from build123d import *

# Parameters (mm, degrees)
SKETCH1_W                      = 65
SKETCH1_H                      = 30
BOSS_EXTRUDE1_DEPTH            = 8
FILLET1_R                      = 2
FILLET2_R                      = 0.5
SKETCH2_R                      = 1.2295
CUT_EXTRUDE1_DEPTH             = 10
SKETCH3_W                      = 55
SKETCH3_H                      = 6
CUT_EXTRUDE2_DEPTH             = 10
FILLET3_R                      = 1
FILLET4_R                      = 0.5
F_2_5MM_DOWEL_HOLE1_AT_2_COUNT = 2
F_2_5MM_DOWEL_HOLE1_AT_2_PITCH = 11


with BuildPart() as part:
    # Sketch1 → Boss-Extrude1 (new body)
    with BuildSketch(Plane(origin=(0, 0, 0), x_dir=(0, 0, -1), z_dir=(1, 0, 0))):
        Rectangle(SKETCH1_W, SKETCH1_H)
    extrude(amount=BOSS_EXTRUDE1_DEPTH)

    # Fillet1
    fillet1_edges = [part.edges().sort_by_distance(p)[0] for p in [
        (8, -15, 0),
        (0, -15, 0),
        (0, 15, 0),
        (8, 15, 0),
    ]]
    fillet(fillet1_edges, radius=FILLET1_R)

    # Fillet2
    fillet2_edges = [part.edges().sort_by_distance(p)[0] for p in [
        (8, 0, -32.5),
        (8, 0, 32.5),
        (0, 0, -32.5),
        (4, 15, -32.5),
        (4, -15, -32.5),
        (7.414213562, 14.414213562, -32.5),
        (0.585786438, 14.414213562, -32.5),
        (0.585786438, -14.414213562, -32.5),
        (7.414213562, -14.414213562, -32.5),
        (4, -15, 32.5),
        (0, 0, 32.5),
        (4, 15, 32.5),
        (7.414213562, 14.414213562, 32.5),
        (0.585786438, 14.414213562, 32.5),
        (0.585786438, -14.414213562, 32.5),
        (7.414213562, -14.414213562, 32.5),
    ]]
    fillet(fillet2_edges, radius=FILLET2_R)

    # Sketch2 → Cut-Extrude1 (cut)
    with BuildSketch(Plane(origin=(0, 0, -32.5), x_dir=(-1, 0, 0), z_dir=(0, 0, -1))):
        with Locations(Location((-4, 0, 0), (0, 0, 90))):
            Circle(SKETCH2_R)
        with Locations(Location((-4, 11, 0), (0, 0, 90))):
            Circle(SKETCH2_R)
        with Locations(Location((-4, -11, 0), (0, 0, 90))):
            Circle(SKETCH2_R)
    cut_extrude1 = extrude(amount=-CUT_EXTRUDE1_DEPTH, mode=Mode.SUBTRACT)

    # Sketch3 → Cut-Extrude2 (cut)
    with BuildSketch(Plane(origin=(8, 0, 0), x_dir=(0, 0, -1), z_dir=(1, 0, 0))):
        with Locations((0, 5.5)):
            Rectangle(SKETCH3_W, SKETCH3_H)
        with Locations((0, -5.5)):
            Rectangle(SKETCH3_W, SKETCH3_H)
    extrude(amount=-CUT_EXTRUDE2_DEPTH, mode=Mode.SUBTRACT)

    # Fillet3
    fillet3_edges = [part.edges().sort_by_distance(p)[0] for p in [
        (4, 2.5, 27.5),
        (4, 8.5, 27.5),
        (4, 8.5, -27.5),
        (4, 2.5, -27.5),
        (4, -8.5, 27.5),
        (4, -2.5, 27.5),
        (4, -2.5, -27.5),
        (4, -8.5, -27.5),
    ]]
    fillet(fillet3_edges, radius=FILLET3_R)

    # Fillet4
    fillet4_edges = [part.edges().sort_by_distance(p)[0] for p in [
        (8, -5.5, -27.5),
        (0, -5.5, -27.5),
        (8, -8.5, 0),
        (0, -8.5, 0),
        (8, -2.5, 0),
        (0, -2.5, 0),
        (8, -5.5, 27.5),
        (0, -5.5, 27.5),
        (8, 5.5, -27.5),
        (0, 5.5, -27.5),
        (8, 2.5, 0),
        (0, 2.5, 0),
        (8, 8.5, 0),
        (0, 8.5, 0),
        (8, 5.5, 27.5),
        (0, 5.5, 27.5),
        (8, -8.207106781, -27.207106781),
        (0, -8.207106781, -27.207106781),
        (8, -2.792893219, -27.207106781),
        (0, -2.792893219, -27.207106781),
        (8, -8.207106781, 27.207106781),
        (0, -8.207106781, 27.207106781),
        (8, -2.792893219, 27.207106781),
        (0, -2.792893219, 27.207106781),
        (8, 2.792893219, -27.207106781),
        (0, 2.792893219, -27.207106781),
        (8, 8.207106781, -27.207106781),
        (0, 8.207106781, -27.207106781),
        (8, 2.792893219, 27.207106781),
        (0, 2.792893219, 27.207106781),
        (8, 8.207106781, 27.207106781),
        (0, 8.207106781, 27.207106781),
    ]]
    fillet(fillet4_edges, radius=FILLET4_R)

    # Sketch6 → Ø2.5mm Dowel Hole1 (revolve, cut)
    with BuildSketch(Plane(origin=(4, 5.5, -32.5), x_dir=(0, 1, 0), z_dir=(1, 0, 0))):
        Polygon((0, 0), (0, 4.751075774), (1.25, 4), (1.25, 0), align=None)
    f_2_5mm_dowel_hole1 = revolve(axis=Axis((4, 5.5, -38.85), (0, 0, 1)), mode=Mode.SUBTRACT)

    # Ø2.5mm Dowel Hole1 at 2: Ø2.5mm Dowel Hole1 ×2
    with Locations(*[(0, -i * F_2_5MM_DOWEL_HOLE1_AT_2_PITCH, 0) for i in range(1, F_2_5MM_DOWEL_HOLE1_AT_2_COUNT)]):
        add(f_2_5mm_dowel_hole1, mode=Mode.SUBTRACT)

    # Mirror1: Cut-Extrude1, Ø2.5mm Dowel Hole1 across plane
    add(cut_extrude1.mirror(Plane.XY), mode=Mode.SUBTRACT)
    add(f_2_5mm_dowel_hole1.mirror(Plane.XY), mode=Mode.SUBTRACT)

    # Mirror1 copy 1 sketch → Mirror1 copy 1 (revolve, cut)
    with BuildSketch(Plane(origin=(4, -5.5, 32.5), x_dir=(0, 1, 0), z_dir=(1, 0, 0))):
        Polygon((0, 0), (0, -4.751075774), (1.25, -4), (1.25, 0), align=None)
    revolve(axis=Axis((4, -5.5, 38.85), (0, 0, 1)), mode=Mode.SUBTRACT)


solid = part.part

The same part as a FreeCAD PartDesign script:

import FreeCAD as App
import Part
import Sketcher
Q = App.Units.Quantity


def edges_at(feature, points):
    """Names of the edges that pass closest to the given points."""
    edges = feature.Shape.Edges
    near = lambda p: min(range(len(edges)), key=lambda i: edges[i].distToShape(Part.Vertex(*p))[0])
    return sorted({f"Edge{near(p) + 1}" for p in points})

doc = App.newDocument("Part")
body = doc.addObject("PartDesign::Body", "Body")

# Sketch on YZ plane
sketch1 = body.newObject("Sketcher::SketchObject", "Sketch")
sketch1.AttachmentSupport = (doc.getObject("YZ_Plane"), [""])
sketch1.MapMode = "FlatFace"
sketch1.addGeometry([
    Part.LineSegment(App.Vector(15, 32, 0), App.Vector(-15, 32, 0)),
    Part.LineSegment(App.Vector(-15, 32, 0), App.Vector(-15, -32, 0)),
    Part.LineSegment(App.Vector(-15, -32, 0), App.Vector(15, -32, 0)),
    Part.LineSegment(App.Vector(15, -32, 0), App.Vector(15, 32, 0)),
], False)
sketch1.addConstraint([
    Sketcher.Constraint("Coincident", 0, 2, 1, 1),
    Sketcher.Constraint("Coincident", 1, 2, 2, 1),
    Sketcher.Constraint("Coincident", 2, 2, 3, 1),
    Sketcher.Constraint("Coincident", 3, 2, 0, 1),
    Sketcher.Constraint("Horizontal", 0),
    Sketcher.Constraint("Vertical", 1),
    Sketcher.Constraint("Horizontal", 2),
    Sketcher.Constraint("Vertical", 3),
    Sketcher.Constraint("Symmetric", 0, 2, 2, 2, -1, 1),
    Sketcher.Constraint("DistanceX", 0, 2, 0, 1, 30.0),
    Sketcher.Constraint("DistanceY", 1, 2, 1, 1, 65.0),
])
pad1 = body.newObject("PartDesign::Pad", "Pad")
pad1.Profile = sketch1
pad1.Length = 8
doc.recompute()

fillet = body.newObject("PartDesign::Fillet", "Fillet")
fillet.Base = (pad1, edges_at(pad1, [
    (8, -15, 0),
    (0, -15, 0),
    (0, 15, 0),
    (8, 15, 0),
]))
fillet.Radius = 2
doc.recompute()

fillet2 = body.newObject("PartDesign::Fillet", "Fillet001")
fillet2.Base = (fillet, edges_at(fillet, [
    (8, 0, -32.5),
    (8, 0, 32.5),
    (0, 0, -32.5),
    (4, 15, -32.5),
    (4, -15, -32.5),
    (7.414, 14.414, -32.5),
    (0.586, 14.414, -32.5),
    (0.586, -14.414, -32.5),
    (7.414, -14.414, -32.5),
    (4, -15, 32.5),
    (0, 0, 32.5),
    (4, 15, 32.5),
    (7.414, 14.414, 32.5),
    (0.586, 14.414, 32.5),
    (0.586, -14.414, 32.5),
    (7.414, -14.414, 32.5),
]))
fillet2.Radius = 0.5

# Sketch on XY plane
sketch2 = body.newObject("Sketcher::SketchObject", "Sketch001")
sketch2.AttachmentSupport = (doc.getObject("XY_Plane"), [""])
sketch2.MapMode = "FlatFace"
sketch2.AttachmentOffset = App.Placement(App.Vector(0, 0, -32.5), App.Rotation())
sketch2.addGeometry([
    Part.Circle(App.Vector(4, 0, 0), App.Vector(0, 0, 1), 1.2),
    Part.Circle(App.Vector(4, 11, 0), App.Vector(0, 0, 1), 1.2),
    Part.Circle(App.Vector(4, -11, 0), App.Vector(0, 0, 1), 1.2),
], False)
sketch2.addConstraint([
    Sketcher.Constraint("Equal", 0, 1),
    Sketcher.Constraint("Equal", 1, 2),
    Sketcher.Constraint("Symmetric", 1, 3, 2, 3, -1),
    Sketcher.Constraint("PointOnObject", 0, 3, -1),
    Sketcher.Constraint("Vertical", 0, 3, 1, 3),
    Sketcher.Constraint("Diameter", 0, 2.459),
    Sketcher.Constraint("DistanceX", -1, 1, 0, 3, 4.0),
    Sketcher.Constraint("DistanceY", -1, 1, 1, 3, 11.0),
])
pocket1 = body.newObject("PartDesign::Pocket", "Pocket")
pocket1.Profile = sketch2
pocket1.Length = 10
pocket1.Reversed = True

# Sketch on YZ plane
sketch3 = body.newObject("Sketcher::SketchObject", "Sketch002")
sketch3.AttachmentSupport = (doc.getObject("YZ_Plane"), [""])
sketch3.MapMode = "FlatFace"
sketch3.AttachmentOffset = App.Placement(App.Vector(0, 0, 8), App.Rotation())
sketch3.addGeometry([
    Part.LineSegment(App.Vector(8, 28, 0), App.Vector(2, 28, 0)),  # 0
    Part.LineSegment(App.Vector(2, 28, 0), App.Vector(2, -28, 0)),  # 1
    Part.LineSegment(App.Vector(2, -28, 0), App.Vector(8, -28, 0)),  # 2
    Part.LineSegment(App.Vector(8, -28, 0), App.Vector(8, 28, 0)),  # 3
    Part.LineSegment(App.Vector(-2, 28, 0), App.Vector(-8, 28, 0)),  # 4
    Part.LineSegment(App.Vector(-8, 28, 0), App.Vector(-8, -28, 0)),  # 5
    Part.LineSegment(App.Vector(-8, -28, 0), App.Vector(-2, -28, 0)),  # 6
    Part.LineSegment(App.Vector(-2, -28, 0), App.Vector(-2, 28, 0)),  # 7
], False)
sketch3.addConstraint([
    Sketcher.Constraint("Coincident", 0, 2, 1, 1),
    Sketcher.Constraint("Coincident", 1, 2, 2, 1),
    Sketcher.Constraint("Coincident", 2, 2, 3, 1),
    Sketcher.Constraint("Coincident", 3, 2, 0, 1),
    Sketcher.Constraint("Coincident", 4, 2, 5, 1),
    Sketcher.Constraint("Coincident", 5, 2, 6, 1),
    Sketcher.Constraint("Coincident", 6, 2, 7, 1),
    Sketcher.Constraint("Coincident", 7, 2, 4, 1),
    Sketcher.Constraint("Horizontal", 0),
    Sketcher.Constraint("Vertical", 1),
    Sketcher.Constraint("Horizontal", 2),
    Sketcher.Constraint("Vertical", 3),
    Sketcher.Constraint("Horizontal", 4),
    Sketcher.Constraint("Vertical", 5),
    Sketcher.Constraint("Horizontal", 6),
    Sketcher.Constraint("Vertical", 7),
    Sketcher.Constraint("Symmetric", 2, 2, 4, 2, -1, 1),
    Sketcher.Constraint("Symmetric", 0, 2, 6, 2, -1, 1),
    Sketcher.Constraint("Horizontal", 3, 2, 4, 2),
    Sketcher.Constraint("DistanceX", 0, 2, 0, 1, 6.0),
    Sketcher.Constraint("DistanceY", 1, 2, 1, 1, 55.0),
    Sketcher.Constraint("DistanceX", 4, 2, 0, 2, 11.0),
])
pocket2 = body.newObject("PartDesign::Pocket", "Pocket001")
pocket2.Profile = sketch3
pocket2.Length = 10
doc.recompute()

fillet3 = body.newObject("PartDesign::Fillet", "Fillet002")
fillet3.Base = (pocket2, edges_at(pocket2, [
    (4, 2.5, 27.5),
    (4, 8.5, 27.5),
    (4, 8.5, -27.5),
    (4, 2.5, -27.5),
    (4, -8.5, 27.5),
    (4, -2.5, 27.5),
    (4, -2.5, -27.5),
    (4, -8.5, -27.5),
]))
fillet3.Radius = 1
doc.recompute()

fillet4 = body.newObject("PartDesign::Fillet", "Fillet003")
fillet4.Base = (fillet3, edges_at(fillet3, [
    (8, -5.5, -27.5),
    (0, -5.5, -27.5),
    (8, -8.5, 0),
    (0, -8.5, 0),
    (8, -2.5, 0),
    (0, -2.5, 0),
    (8, -5.5, 27.5),
    (0, -5.5, 27.5),
    (8, 5.5, -27.5),
    (0, 5.5, -27.5),
    (8, 2.5, 0),
    (0, 2.5, 0),
    (8, 8.5, 0),
    (0, 8.5, 0),
    (8, 5.5, 27.5),
    (0, 5.5, 27.5),
    (8, -8.207, -27.207),
    (0, -8.207, -27.207),
    (8, -2.793, -27.207),
    (0, -2.793, -27.207),
    (8, -8.207, 27.207),
    (0, -8.207, 27.207),
    (8, -2.793, 27.207),
    (0, -2.793, 27.207),
    (8, 2.793, -27.207),
    (0, 2.793, -27.207),
    (8, 8.207, -27.207),
    (0, 8.207, -27.207),
    (8, 2.793, 27.207),
    (0, 2.793, 27.207),
    (8, 8.207, 27.207),
    (0, 8.207, 27.207),
]))
fillet4.Radius = 0.5

# Sketch on YZ plane
sketch4 = body.newObject("Sketcher::SketchObject", "Sketch003")
sketch4.AttachmentSupport = (doc.getObject("YZ_Plane"), [""])
sketch4.MapMode = "FlatFace"
sketch4.AttachmentOffset = App.Placement(App.Vector(0, 0, 4), App.Rotation())
sketch4.addGeometry([
    Part.LineSegment(App.Vector(5.5, -27.7, 0), App.Vector(5.5, -32.5, 0)),
    Part.LineSegment(App.Vector(5.5, -32.5, 0), App.Vector(6.8, -32.5, 0)),
    Part.LineSegment(App.Vector(6.8, -32.5, 0), App.Vector(6.8, -28.5, 0)),
    Part.LineSegment(App.Vector(6.8, -28.5, 0), App.Vector(5.5, -27.7, 0)),
], False)
sketch4.addGeometry(Part.LineSegment(App.Vector(5.5, -32.5, 0), App.Vector(5.5, -27.7, 0)), True)  # axis
sketch4.addConstraint([
    Sketcher.Constraint("Coincident", 0, 2, 1, 1),
    Sketcher.Constraint("Coincident", 1, 2, 2, 1),
    Sketcher.Constraint("Coincident", 2, 2, 3, 1),
    Sketcher.Constraint("Coincident", 3, 2, 0, 1),
    Sketcher.Constraint("Vertical", 0),
    Sketcher.Constraint("Horizontal", 1),
    Sketcher.Constraint("Vertical", 2),
    Sketcher.Constraint("Vertical", 4),
    Sketcher.Constraint("Coincident", 4, 1, 0, 2),
    Sketcher.Constraint("Equal", 0, 4),
    Sketcher.Constraint("DistanceY", 2, 1, 2, 2, 4.0),
    Sketcher.Constraint("Angle", 3, Q("149 deg")),
    Sketcher.Constraint("DistanceX", 1, 1, 1, 2, 1.25),
    Sketcher.Constraint("DistanceX", -1, 1, 0, 2, 5.5),
    Sketcher.Constraint("DistanceY", 0, 2, -1, 1, 32.5),
])
groove = body.newObject("PartDesign::Groove", "Groove")
groove.Profile = sketch4
groove.ReferenceAxis = (sketch4, ["Axis0"])
groove.Angle = 360
doc.recompute()

linearpattern = body.newObject("PartDesign::LinearPattern", "LinearPattern")
linearpattern.Originals = [groove]
linearpattern.Direction = (doc.getObject("Y_Axis"), [""])
linearpattern.Mode = "offset"
linearpattern.Offset = 11
linearpattern.Occurrences = 2
linearpattern.Reversed = True
body.Tip = linearpattern
doc.recompute()

mirrored = body.newObject("PartDesign::Mirrored", "Mirrored")
mirrored.Originals = [pocket1, groove]
mirrored.MirrorPlane = (doc.getObject("XY_Plane"), [""])
body.Tip = mirrored

# Sketch on YZ plane
sketch5 = body.newObject("Sketcher::SketchObject", "Sketch004")
sketch5.AttachmentSupport = (doc.getObject("YZ_Plane"), [""])
sketch5.MapMode = "FlatFace"
sketch5.AttachmentOffset = App.Placement(App.Vector(0, 0, 4), App.Rotation())
sketch5.addGeometry([
    Part.LineSegment(App.Vector(-5.5, 32.5, 0), App.Vector(-5.5, 27.7, 0)),
    Part.LineSegment(App.Vector(-5.5, 27.7, 0), App.Vector(-4.2, 28.5, 0)),
    Part.LineSegment(App.Vector(-4.2, 28.5, 0), App.Vector(-4.2, 32.5, 0)),
    Part.LineSegment(App.Vector(-4.2, 32.5, 0), App.Vector(-5.5, 32.5, 0)),
], False)
sketch5.addGeometry(Part.LineSegment(App.Vector(-5.5, 27.7, 0), App.Vector(-5.5, 32.5, 0)), True)  # axis
sketch5.addConstraint([
    Sketcher.Constraint("Coincident", 0, 2, 1, 1),
    Sketcher.Constraint("Coincident", 1, 2, 2, 1),
    Sketcher.Constraint("Coincident", 2, 2, 3, 1),
    Sketcher.Constraint("Coincident", 3, 2, 0, 1),
    Sketcher.Constraint("Vertical", 0),
    Sketcher.Constraint("Vertical", 2),
    Sketcher.Constraint("Horizontal", 3),
    Sketcher.Constraint("Vertical", 4),
    Sketcher.Constraint("Coincident", 4, 1, 0, 2),
    Sketcher.Constraint("Horizontal", 2, 2, 4, 2),
    Sketcher.Constraint("DistanceY", 2, 1, 2, 2, 4.0),
    Sketcher.Constraint("Angle", 1, Q("31 deg")),
    Sketcher.Constraint("DistanceX", 3, 2, 3, 1, 1.25),
    Sketcher.Constraint("DistanceX", 0, 2, -1, 1, 5.5),
    Sketcher.Constraint("DistanceY", -1, 1, 1, 2, 28.5),
])
groove2 = body.newObject("PartDesign::Groove", "Groove001")
groove2.Profile = sketch5
groove2.ReferenceAxis = (sketch5, ["Axis0"])
groove2.Angle = 360

doc.recompute()
